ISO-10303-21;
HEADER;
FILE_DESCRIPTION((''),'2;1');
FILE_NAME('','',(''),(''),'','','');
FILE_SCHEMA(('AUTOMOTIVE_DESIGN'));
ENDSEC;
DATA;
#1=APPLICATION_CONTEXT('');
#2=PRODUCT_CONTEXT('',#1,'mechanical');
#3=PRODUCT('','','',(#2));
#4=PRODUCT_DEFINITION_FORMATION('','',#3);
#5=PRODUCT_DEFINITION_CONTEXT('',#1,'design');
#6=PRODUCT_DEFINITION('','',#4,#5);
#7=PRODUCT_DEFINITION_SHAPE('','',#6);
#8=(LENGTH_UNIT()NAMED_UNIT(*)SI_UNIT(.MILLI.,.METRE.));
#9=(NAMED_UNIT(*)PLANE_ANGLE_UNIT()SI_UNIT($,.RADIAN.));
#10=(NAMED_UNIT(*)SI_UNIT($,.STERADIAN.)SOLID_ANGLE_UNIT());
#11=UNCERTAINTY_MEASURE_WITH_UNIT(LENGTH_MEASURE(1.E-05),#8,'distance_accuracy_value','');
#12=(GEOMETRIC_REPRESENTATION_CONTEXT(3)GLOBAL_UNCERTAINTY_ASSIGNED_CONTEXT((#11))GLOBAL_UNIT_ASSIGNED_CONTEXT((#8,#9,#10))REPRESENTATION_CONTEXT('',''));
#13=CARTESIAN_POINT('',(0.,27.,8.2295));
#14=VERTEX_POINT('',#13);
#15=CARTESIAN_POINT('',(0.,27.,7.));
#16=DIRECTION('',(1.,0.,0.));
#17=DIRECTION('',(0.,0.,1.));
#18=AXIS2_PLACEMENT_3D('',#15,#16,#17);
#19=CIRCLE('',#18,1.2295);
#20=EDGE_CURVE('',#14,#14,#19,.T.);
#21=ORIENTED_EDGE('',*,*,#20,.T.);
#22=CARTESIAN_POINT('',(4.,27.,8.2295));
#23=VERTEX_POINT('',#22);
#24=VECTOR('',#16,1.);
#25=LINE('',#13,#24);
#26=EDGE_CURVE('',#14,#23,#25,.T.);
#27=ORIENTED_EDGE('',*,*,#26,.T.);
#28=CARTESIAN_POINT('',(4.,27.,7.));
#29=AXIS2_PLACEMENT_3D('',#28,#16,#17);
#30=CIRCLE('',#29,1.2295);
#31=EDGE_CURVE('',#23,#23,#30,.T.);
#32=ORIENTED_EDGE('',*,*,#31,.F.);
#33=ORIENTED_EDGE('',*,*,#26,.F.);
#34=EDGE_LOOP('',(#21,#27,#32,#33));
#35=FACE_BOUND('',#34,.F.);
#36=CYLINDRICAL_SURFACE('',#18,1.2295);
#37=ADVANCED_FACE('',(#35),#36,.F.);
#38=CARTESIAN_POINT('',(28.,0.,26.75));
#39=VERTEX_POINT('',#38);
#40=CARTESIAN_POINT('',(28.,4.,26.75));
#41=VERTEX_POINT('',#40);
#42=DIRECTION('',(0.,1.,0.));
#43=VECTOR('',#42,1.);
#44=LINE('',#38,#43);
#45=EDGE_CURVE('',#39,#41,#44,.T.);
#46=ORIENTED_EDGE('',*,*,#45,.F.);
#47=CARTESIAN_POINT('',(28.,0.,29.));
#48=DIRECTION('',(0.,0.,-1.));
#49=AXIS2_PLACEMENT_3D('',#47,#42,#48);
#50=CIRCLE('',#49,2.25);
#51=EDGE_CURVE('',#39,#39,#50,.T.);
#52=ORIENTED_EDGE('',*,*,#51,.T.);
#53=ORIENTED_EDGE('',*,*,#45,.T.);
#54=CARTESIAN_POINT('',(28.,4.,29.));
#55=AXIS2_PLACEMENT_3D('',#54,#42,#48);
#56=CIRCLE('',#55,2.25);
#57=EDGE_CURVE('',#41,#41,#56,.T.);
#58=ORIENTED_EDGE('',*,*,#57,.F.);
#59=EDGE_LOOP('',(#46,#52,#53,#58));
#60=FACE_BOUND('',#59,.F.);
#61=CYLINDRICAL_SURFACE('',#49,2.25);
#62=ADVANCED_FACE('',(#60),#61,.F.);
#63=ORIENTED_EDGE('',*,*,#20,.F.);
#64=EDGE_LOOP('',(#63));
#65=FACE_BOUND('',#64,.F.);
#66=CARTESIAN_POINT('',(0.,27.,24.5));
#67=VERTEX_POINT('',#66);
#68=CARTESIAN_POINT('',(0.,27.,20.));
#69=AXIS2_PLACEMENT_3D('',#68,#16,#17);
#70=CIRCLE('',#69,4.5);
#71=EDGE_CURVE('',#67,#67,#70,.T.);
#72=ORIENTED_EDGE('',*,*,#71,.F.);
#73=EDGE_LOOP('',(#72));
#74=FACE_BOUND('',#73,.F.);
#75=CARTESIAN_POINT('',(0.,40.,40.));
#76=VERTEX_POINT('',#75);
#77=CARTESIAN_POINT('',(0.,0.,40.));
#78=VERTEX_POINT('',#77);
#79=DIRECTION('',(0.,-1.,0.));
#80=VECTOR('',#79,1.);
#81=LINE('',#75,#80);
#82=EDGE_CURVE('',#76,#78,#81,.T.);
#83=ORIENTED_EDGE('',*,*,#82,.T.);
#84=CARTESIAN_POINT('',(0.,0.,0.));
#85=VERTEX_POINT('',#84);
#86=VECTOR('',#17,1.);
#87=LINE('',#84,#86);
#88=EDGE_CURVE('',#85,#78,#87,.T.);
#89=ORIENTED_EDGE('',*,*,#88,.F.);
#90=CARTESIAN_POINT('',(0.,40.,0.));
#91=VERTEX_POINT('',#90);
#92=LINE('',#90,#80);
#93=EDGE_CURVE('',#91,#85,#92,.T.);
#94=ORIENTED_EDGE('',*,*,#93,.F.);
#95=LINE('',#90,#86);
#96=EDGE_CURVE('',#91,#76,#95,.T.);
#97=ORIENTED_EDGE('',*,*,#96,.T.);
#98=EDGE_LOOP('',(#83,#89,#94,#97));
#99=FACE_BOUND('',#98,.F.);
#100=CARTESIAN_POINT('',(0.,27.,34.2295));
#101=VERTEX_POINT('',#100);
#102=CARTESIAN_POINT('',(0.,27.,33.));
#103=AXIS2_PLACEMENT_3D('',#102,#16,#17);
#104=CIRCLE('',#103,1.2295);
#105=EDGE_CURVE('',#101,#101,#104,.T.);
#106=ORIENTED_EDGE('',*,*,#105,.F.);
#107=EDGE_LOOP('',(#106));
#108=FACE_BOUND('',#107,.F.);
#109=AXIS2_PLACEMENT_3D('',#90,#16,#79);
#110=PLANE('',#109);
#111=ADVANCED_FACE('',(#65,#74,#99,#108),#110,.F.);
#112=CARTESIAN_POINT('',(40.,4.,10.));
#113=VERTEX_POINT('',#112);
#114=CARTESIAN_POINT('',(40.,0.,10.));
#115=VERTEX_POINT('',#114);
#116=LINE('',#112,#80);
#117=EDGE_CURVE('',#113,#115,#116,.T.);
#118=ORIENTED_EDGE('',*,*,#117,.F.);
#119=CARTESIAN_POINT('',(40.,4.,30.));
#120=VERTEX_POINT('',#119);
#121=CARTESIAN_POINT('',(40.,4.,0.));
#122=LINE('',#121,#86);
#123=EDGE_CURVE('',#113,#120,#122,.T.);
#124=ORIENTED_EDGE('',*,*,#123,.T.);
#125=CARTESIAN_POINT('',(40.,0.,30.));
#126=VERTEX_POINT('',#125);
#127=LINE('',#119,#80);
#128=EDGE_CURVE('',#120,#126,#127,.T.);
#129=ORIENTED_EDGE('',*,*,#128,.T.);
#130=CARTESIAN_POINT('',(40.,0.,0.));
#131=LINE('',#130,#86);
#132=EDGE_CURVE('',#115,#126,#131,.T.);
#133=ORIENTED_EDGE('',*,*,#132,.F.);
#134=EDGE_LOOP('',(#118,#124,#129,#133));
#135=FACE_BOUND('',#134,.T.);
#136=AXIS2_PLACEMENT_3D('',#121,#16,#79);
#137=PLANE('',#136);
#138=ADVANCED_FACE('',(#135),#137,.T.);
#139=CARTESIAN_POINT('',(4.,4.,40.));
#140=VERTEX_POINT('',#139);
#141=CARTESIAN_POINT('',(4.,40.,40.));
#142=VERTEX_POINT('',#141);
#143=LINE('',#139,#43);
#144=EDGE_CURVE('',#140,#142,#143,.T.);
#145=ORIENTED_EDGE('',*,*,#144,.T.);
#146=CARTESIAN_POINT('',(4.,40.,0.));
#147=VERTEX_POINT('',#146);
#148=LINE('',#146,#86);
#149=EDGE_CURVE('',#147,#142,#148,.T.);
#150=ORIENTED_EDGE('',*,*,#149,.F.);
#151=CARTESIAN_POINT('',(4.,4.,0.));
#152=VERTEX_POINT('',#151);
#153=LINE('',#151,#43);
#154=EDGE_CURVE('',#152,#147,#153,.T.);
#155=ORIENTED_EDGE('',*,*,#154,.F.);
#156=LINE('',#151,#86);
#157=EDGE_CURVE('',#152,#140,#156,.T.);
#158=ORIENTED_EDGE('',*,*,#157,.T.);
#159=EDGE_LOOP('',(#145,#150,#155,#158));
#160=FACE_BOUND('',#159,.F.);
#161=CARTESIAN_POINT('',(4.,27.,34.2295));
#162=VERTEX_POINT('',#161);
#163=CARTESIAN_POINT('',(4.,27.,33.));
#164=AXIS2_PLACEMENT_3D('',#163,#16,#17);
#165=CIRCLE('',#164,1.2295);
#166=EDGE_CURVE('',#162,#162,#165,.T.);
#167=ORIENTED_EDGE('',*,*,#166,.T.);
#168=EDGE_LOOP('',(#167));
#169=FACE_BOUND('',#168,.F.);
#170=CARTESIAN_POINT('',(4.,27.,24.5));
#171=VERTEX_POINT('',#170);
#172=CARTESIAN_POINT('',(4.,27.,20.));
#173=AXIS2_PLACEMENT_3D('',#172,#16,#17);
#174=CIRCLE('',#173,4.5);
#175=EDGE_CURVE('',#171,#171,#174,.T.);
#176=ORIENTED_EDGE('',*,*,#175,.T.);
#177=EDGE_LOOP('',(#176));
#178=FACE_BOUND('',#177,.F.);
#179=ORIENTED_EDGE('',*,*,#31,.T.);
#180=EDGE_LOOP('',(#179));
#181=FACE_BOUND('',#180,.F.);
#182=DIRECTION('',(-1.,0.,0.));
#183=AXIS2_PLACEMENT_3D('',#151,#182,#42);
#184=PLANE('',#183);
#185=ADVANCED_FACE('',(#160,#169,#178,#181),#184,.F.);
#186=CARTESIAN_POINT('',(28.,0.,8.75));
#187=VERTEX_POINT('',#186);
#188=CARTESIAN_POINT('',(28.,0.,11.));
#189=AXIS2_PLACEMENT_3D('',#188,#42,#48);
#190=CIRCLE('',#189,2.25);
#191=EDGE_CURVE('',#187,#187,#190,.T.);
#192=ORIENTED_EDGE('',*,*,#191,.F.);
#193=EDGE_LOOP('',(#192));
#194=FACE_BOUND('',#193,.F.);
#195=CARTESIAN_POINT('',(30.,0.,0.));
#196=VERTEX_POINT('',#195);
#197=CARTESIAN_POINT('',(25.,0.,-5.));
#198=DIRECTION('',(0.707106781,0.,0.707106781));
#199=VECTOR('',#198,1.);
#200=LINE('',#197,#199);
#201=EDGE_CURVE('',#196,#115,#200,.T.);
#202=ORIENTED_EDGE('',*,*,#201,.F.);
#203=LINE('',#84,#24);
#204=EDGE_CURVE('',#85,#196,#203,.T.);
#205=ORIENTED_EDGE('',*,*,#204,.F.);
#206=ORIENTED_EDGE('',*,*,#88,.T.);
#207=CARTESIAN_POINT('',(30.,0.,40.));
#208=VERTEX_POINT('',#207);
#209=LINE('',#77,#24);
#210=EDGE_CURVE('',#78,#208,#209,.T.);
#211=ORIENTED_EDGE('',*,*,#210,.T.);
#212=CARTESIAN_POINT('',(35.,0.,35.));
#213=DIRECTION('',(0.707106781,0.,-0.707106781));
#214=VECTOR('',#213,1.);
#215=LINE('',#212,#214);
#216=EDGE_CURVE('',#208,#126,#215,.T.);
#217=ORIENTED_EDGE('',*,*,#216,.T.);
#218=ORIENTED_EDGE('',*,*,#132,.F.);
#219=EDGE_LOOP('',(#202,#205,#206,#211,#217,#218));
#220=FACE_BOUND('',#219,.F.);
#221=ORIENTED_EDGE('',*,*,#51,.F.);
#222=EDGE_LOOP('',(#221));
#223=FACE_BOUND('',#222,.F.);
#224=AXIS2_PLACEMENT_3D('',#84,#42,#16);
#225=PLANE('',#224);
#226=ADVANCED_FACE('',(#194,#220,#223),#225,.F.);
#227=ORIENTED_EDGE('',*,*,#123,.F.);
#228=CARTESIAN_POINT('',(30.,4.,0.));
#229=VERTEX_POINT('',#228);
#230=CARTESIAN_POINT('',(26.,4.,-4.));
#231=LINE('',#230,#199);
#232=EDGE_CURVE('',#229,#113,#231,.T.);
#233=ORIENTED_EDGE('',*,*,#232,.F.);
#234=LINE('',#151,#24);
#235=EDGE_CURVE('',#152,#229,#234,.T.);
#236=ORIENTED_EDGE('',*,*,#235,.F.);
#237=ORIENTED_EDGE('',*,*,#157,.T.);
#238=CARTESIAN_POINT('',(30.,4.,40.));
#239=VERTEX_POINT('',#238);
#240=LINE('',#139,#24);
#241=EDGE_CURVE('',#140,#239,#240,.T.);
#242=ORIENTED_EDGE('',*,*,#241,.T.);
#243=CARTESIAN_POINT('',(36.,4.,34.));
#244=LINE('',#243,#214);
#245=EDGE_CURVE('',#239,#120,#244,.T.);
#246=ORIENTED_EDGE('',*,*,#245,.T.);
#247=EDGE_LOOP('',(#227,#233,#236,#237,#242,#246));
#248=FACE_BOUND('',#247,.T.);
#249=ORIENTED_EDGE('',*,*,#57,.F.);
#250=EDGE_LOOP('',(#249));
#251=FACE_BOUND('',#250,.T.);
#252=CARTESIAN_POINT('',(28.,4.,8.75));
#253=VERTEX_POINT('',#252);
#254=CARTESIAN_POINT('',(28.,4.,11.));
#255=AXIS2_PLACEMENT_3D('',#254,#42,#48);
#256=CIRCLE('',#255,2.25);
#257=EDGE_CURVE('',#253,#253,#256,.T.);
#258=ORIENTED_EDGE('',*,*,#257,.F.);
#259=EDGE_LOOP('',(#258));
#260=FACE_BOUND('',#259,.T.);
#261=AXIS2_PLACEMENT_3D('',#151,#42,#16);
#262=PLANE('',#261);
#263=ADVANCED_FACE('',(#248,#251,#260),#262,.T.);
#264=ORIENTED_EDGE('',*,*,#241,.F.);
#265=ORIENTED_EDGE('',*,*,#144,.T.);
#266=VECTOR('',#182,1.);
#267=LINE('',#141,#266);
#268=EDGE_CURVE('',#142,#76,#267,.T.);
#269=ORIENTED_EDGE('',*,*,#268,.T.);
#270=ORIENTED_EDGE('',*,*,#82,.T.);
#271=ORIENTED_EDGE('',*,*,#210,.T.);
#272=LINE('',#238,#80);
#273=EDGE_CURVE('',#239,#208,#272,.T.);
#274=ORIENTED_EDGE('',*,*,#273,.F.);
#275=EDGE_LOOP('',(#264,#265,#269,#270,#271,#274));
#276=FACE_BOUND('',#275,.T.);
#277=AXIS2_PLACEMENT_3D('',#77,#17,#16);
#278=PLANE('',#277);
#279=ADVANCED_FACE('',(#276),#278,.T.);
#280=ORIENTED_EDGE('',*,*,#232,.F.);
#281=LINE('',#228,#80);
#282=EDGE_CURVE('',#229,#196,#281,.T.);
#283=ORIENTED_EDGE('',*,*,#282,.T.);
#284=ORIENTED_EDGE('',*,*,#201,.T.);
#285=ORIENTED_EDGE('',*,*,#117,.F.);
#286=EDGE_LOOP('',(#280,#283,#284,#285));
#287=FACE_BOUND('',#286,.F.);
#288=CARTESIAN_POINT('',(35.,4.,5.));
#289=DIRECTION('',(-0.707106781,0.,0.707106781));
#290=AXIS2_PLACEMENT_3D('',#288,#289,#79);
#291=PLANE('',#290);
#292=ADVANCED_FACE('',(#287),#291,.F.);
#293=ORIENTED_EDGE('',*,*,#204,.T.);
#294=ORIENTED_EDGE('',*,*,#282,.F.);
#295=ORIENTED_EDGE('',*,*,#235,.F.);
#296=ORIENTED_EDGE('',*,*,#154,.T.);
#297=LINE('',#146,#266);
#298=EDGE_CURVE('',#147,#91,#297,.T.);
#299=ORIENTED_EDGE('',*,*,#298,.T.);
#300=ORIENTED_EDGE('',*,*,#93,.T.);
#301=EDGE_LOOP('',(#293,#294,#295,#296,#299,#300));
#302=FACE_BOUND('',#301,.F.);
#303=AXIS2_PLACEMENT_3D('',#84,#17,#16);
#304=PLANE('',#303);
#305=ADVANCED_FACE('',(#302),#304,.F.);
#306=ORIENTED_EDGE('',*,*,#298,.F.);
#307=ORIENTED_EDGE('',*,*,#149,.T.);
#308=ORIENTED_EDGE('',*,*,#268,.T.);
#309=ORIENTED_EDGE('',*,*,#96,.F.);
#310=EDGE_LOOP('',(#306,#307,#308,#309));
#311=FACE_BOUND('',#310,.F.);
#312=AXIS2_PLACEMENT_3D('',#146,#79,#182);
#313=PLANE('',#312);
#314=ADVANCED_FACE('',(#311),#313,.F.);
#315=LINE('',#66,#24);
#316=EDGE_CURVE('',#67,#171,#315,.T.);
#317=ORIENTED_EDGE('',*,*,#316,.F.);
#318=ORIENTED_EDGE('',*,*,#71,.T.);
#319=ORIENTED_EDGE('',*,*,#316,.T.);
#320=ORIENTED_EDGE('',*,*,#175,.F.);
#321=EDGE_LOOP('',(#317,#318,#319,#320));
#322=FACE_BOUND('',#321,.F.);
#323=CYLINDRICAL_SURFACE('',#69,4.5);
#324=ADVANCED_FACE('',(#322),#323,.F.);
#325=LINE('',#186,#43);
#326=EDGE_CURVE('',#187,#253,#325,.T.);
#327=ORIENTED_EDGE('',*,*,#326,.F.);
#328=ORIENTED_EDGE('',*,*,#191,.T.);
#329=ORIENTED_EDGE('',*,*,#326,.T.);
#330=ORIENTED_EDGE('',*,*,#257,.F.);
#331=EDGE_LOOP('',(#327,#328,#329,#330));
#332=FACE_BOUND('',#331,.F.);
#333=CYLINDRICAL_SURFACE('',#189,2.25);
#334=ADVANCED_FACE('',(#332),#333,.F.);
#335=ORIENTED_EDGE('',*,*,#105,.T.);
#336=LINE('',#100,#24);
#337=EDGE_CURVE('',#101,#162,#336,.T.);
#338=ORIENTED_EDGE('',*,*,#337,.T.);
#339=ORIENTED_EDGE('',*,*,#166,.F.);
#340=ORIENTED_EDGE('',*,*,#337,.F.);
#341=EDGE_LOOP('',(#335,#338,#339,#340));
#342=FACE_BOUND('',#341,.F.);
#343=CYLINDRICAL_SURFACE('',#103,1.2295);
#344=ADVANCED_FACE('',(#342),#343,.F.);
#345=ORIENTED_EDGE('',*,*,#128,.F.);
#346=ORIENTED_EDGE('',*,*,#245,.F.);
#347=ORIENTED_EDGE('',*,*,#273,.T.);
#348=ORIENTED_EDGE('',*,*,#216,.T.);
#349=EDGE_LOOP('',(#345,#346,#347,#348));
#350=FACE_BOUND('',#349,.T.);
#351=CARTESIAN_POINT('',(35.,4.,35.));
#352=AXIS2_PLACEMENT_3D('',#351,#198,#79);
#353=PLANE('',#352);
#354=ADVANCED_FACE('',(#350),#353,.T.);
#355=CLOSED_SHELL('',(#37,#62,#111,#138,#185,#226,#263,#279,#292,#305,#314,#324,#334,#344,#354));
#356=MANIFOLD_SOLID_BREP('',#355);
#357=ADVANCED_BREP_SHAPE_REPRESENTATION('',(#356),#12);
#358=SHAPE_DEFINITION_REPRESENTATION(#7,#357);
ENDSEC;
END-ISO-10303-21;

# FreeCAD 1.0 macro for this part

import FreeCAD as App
import Part
import Sketcher
from FreeCAD import Vector


def edges_at(feature, points):
    """Names of the edges that pass closest to the given points."""
    edges = feature.Shape.Edges
    near = lambda p: min(range(len(edges)), key=lambda i: edges[i].distToShape(Part.Vertex(*p))[0])
    return sorted({f"Edge{near(p) + 1}" for p in points})


def add_polygon(sketch, points):
    """Adds a closed chain of lines whose ends are joined by coincident constraints."""
    first, n = sketch.GeometryCount, len(points)
    for a, b in zip(points, points[1:] + points[:1]):
        sketch.addGeometry(Part.LineSegment(App.Vector(*a, 0), App.Vector(*b, 0)), False)
    for i in range(n):
        sketch.addConstraint(Sketcher.Constraint("Coincident", first + i, 2, first + (i + 1) % n, 1))

doc = App.newDocument("Part")
params = doc.addObject("Spreadsheet::Sheet", "Params")
for row, (alias, value) in enumerate([
    ("sketch1_width", "40 mm"),
    ("sketch1_width2", "4 mm"),
    ("pad1_length", "40 mm"),
    ("sketch2_diameter", "9 mm"),
    ("hole_diameter", "9 mm"),
    ("hole2_diameter", "2.459 mm"),
    ("sketch4_diameter", "4.5 mm"),
    ("hole3_diameter", "4.5 mm"),
    ("chamfer_size", "10 mm"),
], start=1):
    params.set(f"A{row}", alias)
    params.set(f"B{row}", "=" + value)
    params.setAlias(f"B{row}", alias)

body = doc.addObject("PartDesign::Body", "Body")

# Sketch on XY plane
sketch1 = body.newObject("Sketcher::SketchObject", "Sketch")
sketch1.AttachmentSupport = (doc.getObject("XY_Plane"), [""])
sketch1.MapMode = "FlatFace"
add_polygon(sketch1, [(0, 40), (0, 0), (40, 0), (40, 4), (4, 4), (4, 40)])  # lines 0-5
sketch1.addConstraint([
    Sketcher.Constraint("Vertical", 0),
    Sketcher.Constraint("Horizontal", 1),
    Sketcher.Constraint("Vertical", 2),
    Sketcher.Constraint("Horizontal", 3),
    Sketcher.Constraint("Vertical", 4),
    Sketcher.Constraint("Horizontal", 5),
    Sketcher.Constraint("Coincident", 0, 2, -1, 1),
    Sketcher.Constraint("Equal", 1, 0),
    Sketcher.Constraint("Equal", 5, 2),
    Sketcher.Constraint("DistanceX", 1, 1, 1, 2, 40.0),
    Sketcher.Constraint("DistanceX", 5, 2, 5, 1, 4.0),
])
sketch1.setExpression("Constraints[15]", "Params.sketch1_width")
sketch1.setExpression("Constraints[16]", "Params.sketch1_width2")
pad1 = body.newObject("PartDesign::Pad", "Pad")
pad1.Profile = sketch1
pad1.setExpression("Length", "Params.pad1_length")

# Sketch on YZ plane
sketch2 = body.newObject("Sketcher::SketchObject", "Sketch001")
sketch2.AttachmentSupport = (doc.getObject("YZ_Plane"), [""])
sketch2.MapMode = "FlatFace"
sketch2.addGeometry(Part.Circle(Vector(27, 20, 0), Vector(0, 0, 1), 4.5), False)
sketch2.addConstraint([
    Sketcher.Constraint("Diameter", 0, 9.0),
    Sketcher.Constraint("DistanceX", -1, 1, 0, 3, 27.0),
    Sketcher.Constraint("DistanceY", -1, 1, 0, 3, 20.0),
])
sketch2.setExpression("Constraints[0]", "Params.sketch2_diameter")
doc.recompute()
hole = body.newObject("PartDesign::Hole", "Hole")
hole.Profile = sketch2
hole.ThreadType = "None"
hole.setExpression("Diameter", "Params.hole_diameter")
hole.DepthType = "ThroughAll"
hole.Reversed = True

# Sketch on YZ plane
sketch3 = body.newObject("Sketcher::SketchObject", "Sketch002")
sketch3.AttachmentSupport = (doc.getObject("YZ_Plane"), [""])
sketch3.MapMode = "FlatFace"
sketch3.addGeometry([
    Part.Circle(Vector(27, 7, 0), Vector(0, 0, 1), 1.2),
    Part.Circle(Vector(27, 33, 0), Vector(0, 0, 1), 1.2),
], False)
sketch3.addConstraint([
    Sketcher.Constraint("Equal", 0, 1),
    Sketcher.Constraint("Vertical", 0, 3, 1, 3),
    Sketcher.Constraint("Diameter", 0, 2.459),
    Sketcher.Constraint("DistanceX", -1, 1, 0, 3, 27.0),
    Sketcher.Constraint("DistanceY", -1, 1, 0, 3, 7.0),
    Sketcher.Constraint("DistanceY", -1, 1, 1, 3, 33.0),
])
doc.recompute()
hole2 = body.newObject("PartDesign::Hole", "Hole001")
hole2.Profile = sketch3
hole2.ThreadType = "None"
hole2.setExpression("Diameter", "Params.hole2_diameter")
hole2.DepthType = "ThroughAll"
hole2.Reversed = True

# Sketch on XZ plane
sketch4 = body.newObject("Sketcher::SketchObject", "Sketch003")
sketch4.AttachmentSupport = (doc.getObject("XZ_Plane"), [""])
sketch4.MapMode = "FlatFace"
sketch4.addGeometry([
    Part.Circle(Vector(28, 29, 0), Vector(0, 0, 1), 2.2),
    Part.Circle(Vector(28, 11, 0), Vector(0, 0, 1), 2.2),
], False)
sketch4.addConstraint([
    Sketcher.Constraint("Equal", 0, 1),
    Sketcher.Constraint("Vertical", 0, 3, 1, 3),
    Sketcher.Constraint("Diameter", 0, 4.5),
    Sketcher.Constraint("DistanceX", -1, 1, 0, 3, 28.0),
    Sketcher.Constraint("DistanceY", -1, 1, 0, 3, 29.0),
    Sketcher.Constraint("DistanceY", -1, 1, 1, 3, 11.0),
])
sketch4.setExpression("Constraints[2]", "Params.sketch4_diameter")
doc.recompute()
hole3 = body.newObject("PartDesign::Hole", "Hole002")
hole3.Profile = sketch4
hole3.ThreadType = "None"
hole3.setExpression("Diameter", "Params.hole3_diameter")
hole3.DepthType = "ThroughAll"
doc.recompute()

chamfer = body.newObject("PartDesign::Chamfer", "Chamfer")
chamfer.Base = (hole3, edges_at(hole3, [(40, 2, 40), (40, 2, 0)]))
chamfer.setExpression("Size", "Params.chamfer_size")

doc.recompute()
